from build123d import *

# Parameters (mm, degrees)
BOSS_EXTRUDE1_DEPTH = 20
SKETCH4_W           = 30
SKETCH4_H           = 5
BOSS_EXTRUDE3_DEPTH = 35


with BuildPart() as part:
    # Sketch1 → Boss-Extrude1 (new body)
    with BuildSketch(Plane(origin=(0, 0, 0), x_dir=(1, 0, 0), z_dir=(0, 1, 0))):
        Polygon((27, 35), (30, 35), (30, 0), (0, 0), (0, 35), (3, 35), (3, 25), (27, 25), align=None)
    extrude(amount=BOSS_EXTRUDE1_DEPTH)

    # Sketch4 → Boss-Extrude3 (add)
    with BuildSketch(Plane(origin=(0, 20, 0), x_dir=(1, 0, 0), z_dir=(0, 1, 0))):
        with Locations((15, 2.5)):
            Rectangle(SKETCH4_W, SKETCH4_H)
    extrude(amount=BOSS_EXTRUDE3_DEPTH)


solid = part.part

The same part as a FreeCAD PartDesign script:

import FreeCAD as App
import Part
import Sketcher
from FreeCAD import Vector


def add_polygon(sketch, points):
    """Adds a closed chain of lines whose ends are joined by coincident constraints."""
    first, n = sketch.GeometryCount, len(points)
    for a, b in zip(points, points[1:] + points[:1]):
        sketch.addGeometry(Part.LineSegment(App.Vector(*a, 0), App.Vector(*b, 0)), False)
    for i in range(n):
        sketch.addConstraint(Sketcher.Constraint("Coincident", first + i, 2, first + (i + 1) % n, 1))

doc = App.newDocument("Part")
body = doc.addObject("PartDesign::Body", "Body")

# Sketch on XZ plane
sketch1 = body.newObject("Sketcher::SketchObject", "Sketch")
sketch1.AttachmentSupport = (doc.getObject("XZ_Plane"), [""])
sketch1.MapMode = "FlatFace"
add_polygon(sketch1, [(30, -35), (27, -35), (27, -25), (3, -25), (3, -35), (0, -35), (0, 0), (30, 0)])  # lines 0-7
sketch1.addConstraint([
    Sketcher.Constraint("Horizontal", 0),
    Sketcher.Constraint("Vertical", 1),
    Sketcher.Constraint("Horizontal", 2),
    Sketcher.Constraint("Vertical", 3),
    Sketcher.Constraint("Horizontal", 4),
    Sketcher.Constraint("Vertical", 5),
    Sketcher.Constraint("Horizontal", 6),
    Sketcher.Constraint("Vertical", 7),
    Sketcher.Constraint("Coincident", 5, 2, -1, 1),
    Sketcher.Constraint("Horizontal", 0, 2, 3, 2),
    Sketcher.Constraint("Equal", 0, 4),
    Sketcher.Constraint("DistanceX", 0, 2, 0, 1, 3.0),
    Sketcher.Constraint("DistanceX", 2, 2, 2, 1, 24.0),
    Sketcher.Constraint("DistanceY", 1, 1, 1, 2, 10.0),
    Sketcher.Constraint("DistanceY", 5, 1, 5, 2, 35.0),
])
pad1 = body.newObject("PartDesign::Pad", "Pad")
pad1.Profile = sketch1
pad1.Length = 20
pad1.Reversed = True

# Sketch on XZ plane
sketch2 = body.newObject("Sketcher::SketchObject", "Sketch001")
sketch2.AttachmentSupport = (doc.getObject("XZ_Plane"), [""])
sketch2.MapMode = "FlatFace"
sketch2.AttachmentOffset = App.Placement(Vector(0, 0, -20), App.Rotation())
add_polygon(sketch2, [(0, -5), (0, 0), (30, 0), (30, -5)])  # lines 0-3
sketch2.addConstraint([
    Sketcher.Constraint("Vertical", 0),
    Sketcher.Constraint("Horizontal", 1),
    Sketcher.Constraint("Vertical", 2),
    Sketcher.Constraint("Horizontal", 3),
    Sketcher.Constraint("Coincident", 0, 2, -1, 1),
    Sketcher.Constraint("DistanceX", 1, 1, 1, 2, 30.0),
    Sketcher.Constraint("DistanceY", 0, 1, 0, 2, 5.0),
])
pad2 = body.newObject("PartDesign::Pad", "Pad001")
pad2.Profile = sketch2
pad2.Length = 35
pad2.Reversed = True

doc.recompute()
